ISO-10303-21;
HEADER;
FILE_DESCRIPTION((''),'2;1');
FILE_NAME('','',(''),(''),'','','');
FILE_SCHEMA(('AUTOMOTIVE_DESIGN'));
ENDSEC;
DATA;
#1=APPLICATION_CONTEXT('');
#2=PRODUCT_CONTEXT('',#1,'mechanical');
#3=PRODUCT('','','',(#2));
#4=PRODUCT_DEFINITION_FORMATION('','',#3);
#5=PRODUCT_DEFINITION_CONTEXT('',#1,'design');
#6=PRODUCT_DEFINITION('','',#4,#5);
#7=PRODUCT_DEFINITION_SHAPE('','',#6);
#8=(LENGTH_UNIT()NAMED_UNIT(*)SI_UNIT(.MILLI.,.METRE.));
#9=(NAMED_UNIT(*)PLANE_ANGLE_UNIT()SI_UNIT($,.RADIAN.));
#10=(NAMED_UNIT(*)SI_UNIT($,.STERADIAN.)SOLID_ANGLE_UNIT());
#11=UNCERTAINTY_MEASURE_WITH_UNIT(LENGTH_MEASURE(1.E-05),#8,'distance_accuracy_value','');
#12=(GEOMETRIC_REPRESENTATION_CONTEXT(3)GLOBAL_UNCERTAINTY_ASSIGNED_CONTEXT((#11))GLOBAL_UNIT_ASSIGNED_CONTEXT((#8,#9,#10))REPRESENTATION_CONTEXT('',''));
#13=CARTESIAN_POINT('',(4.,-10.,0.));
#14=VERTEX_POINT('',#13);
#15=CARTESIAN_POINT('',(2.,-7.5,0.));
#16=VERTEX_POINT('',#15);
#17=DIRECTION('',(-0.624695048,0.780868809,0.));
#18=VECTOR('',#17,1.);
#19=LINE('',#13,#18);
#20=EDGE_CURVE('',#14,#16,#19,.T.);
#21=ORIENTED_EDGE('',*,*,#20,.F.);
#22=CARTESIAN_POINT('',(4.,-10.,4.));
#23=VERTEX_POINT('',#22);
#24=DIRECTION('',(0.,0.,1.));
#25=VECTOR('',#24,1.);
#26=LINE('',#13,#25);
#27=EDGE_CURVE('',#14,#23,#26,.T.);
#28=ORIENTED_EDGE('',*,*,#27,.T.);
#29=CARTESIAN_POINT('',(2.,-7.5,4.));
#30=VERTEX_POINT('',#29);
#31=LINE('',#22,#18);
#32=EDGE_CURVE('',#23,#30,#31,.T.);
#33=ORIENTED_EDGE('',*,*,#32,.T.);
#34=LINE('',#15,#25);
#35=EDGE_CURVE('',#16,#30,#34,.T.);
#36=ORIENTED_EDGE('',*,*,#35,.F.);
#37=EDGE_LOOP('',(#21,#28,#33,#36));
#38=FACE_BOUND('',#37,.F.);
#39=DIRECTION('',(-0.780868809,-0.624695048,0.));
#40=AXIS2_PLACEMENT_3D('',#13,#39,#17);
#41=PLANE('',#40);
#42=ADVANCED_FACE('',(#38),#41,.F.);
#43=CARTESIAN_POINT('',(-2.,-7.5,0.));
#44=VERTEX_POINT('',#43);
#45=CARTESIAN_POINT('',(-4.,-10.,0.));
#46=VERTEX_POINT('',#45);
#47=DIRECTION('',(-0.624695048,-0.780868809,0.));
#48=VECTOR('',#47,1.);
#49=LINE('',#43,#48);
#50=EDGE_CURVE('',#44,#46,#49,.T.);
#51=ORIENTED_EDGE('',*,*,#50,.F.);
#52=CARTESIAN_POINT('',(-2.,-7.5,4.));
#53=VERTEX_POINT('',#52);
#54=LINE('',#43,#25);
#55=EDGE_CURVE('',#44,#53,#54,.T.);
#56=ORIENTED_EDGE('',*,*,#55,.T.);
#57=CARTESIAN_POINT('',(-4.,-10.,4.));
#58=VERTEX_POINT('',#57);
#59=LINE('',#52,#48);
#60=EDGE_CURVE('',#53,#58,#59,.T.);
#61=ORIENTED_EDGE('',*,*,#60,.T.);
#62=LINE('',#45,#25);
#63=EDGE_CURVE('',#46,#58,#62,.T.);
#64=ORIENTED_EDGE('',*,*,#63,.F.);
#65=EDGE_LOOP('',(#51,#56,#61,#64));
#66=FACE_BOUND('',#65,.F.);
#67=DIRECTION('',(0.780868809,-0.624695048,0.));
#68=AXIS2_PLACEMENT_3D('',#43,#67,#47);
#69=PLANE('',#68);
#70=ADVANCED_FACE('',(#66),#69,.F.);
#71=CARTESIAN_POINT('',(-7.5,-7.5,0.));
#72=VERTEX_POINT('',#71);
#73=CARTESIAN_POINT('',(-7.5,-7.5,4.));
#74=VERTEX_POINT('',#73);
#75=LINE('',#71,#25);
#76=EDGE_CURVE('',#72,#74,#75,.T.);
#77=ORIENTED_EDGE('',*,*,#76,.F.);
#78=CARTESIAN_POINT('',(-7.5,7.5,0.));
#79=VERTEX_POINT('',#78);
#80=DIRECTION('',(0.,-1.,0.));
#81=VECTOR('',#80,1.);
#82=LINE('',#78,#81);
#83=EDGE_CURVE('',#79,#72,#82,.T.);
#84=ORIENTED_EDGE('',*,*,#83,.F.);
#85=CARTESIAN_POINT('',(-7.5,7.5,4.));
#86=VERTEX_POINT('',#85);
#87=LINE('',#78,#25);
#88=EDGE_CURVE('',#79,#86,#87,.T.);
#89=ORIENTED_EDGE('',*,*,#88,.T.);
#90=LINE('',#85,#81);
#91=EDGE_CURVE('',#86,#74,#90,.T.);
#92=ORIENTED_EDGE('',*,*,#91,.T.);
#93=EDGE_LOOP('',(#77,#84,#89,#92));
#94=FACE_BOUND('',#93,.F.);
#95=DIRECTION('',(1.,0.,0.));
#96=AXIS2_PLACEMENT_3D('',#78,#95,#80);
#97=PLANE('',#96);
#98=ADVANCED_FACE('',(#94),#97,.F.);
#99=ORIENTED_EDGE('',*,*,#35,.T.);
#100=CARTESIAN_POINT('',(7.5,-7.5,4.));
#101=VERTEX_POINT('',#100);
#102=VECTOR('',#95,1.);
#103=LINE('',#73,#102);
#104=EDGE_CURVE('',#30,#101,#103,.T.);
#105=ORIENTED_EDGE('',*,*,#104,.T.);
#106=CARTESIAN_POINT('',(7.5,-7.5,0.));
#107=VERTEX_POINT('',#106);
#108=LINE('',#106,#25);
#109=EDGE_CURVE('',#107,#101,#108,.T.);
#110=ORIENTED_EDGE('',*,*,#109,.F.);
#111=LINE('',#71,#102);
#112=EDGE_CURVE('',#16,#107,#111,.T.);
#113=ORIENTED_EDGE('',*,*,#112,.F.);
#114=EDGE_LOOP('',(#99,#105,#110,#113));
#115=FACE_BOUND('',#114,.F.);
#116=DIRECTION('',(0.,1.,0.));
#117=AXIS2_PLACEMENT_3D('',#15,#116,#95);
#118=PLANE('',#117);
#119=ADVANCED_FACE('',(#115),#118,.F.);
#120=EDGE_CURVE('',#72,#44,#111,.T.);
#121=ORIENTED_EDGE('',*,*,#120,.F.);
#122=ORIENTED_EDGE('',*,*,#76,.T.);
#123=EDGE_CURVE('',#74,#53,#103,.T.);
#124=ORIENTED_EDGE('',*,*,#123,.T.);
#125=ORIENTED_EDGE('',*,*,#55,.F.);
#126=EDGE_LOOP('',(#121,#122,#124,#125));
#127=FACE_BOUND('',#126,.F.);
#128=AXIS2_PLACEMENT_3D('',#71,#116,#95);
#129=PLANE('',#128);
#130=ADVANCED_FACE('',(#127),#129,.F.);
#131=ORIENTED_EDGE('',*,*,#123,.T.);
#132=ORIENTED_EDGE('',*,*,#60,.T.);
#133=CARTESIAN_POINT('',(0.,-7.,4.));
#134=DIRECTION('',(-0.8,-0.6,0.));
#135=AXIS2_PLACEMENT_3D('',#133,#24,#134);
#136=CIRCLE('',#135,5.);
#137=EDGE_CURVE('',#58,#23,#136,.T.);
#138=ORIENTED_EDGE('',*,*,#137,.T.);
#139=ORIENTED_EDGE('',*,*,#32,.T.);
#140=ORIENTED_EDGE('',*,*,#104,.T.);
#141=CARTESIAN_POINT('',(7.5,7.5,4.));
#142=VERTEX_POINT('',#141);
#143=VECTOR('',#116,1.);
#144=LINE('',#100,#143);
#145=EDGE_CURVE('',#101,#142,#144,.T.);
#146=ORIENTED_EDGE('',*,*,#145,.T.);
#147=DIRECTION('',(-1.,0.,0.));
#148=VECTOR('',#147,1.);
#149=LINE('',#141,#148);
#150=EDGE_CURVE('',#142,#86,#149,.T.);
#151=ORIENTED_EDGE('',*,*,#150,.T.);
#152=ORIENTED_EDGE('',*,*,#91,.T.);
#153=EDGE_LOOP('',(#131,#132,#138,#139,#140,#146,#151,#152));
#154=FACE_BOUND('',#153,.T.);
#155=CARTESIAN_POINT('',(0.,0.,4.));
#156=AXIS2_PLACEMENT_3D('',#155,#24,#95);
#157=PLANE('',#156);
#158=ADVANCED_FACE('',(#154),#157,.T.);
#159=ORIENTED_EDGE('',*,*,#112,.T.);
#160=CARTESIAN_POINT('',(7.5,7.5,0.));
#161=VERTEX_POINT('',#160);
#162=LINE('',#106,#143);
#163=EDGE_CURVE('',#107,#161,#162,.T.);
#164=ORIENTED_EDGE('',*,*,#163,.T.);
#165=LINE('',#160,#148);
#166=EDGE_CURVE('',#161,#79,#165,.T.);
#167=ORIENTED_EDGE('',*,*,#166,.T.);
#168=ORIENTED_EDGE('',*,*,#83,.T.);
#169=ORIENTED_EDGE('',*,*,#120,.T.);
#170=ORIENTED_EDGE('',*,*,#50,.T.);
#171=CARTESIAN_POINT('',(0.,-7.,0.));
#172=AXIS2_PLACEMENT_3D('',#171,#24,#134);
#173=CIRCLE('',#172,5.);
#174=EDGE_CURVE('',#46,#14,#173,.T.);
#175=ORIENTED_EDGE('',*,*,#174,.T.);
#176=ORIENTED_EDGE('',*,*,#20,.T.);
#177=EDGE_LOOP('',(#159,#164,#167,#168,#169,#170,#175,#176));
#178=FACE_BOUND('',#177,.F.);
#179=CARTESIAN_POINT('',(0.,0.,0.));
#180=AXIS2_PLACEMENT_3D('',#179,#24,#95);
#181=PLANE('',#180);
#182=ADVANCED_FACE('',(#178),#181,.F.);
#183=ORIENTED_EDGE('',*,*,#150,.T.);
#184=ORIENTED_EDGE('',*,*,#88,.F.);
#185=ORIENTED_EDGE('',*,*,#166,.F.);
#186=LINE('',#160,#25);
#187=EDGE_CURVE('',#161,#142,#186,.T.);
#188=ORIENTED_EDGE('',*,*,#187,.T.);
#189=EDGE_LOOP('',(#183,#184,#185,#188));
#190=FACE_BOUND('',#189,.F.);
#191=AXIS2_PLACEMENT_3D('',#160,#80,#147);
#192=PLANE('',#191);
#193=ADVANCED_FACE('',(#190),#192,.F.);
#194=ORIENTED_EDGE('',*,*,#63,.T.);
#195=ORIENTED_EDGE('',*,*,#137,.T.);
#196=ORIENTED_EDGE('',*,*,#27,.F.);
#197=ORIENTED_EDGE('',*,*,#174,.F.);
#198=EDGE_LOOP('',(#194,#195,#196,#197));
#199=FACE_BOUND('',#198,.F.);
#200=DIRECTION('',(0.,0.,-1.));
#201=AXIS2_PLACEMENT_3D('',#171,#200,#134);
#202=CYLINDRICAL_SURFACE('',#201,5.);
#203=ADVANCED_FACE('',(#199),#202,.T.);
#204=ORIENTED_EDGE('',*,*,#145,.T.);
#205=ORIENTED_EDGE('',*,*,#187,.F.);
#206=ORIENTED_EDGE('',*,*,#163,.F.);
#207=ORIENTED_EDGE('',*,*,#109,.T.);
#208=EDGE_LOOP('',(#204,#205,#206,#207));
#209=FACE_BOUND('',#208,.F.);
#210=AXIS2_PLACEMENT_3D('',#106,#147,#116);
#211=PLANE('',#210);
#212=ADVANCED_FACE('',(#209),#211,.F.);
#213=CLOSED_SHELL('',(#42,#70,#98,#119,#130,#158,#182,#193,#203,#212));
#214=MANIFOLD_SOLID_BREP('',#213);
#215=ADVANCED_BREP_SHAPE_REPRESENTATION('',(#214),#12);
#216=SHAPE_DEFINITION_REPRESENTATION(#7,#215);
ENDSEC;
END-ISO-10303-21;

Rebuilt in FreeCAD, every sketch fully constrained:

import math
import FreeCAD as App
import Part
import Sketcher
from FreeCAD import Vector

doc = App.newDocument("Part")
params = doc.addObject("Spreadsheet::Sheet", "Params")
for row, (alias, value) in enumerate([
    ("sketch1_radius", "5 mm"),
    ("sketch1_width", "15 mm"),
    ("sketch1_width2", "5.5 mm"),
    ("pad1_length", "4 mm"),
], start=1):
    params.set(f"A{row}", alias)
    params.set(f"B{row}", "=" + value)
    params.setAlias(f"B{row}", alias)

body = doc.addObject("PartDesign::Body", "Body")

sketch1 = body.newObject("Sketcher::SketchObject", "Sketch")
sketch1.AttachmentSupport = (doc.getObject("XY_Plane"), [""])
sketch1.MapMode = "FlatFace"
sketch1.addGeometry(Part.LineSegment(Vector(7.5, -7.5, 0), Vector(7.5, 7.5, 0)), False)
sketch1.addGeometry(Part.LineSegment(Vector(7.5, 7.5, 0), Vector(-7.5, 7.5, 0)), False)
sketch1.addGeometry(Part.LineSegment(Vector(-7.5, 7.5, 0), Vector(-7.5, -7.5, 0)), False)
sketch1.addGeometry(Part.LineSegment(Vector(-7.5, -7.5, 0), Vector(-2, -7.5, 0)), False)
sketch1.addGeometry(Part.LineSegment(Vector(-2, -7.5, 0), Vector(-4, -10, 0)), False)
sketch1.addGeometry(Part.ArcOfCircle(Part.Circle(Vector(0, -7, 0), Vector(0, 0, 1), 5), math.radians(-143), math.radians(-37)), False)
sketch1.addGeometry(Part.LineSegment(Vector(4, -10, 0), Vector(2, -7.5, 0)), False)
sketch1.addGeometry(Part.LineSegment(Vector(2, -7.5, 0), Vector(7.5, -7.5, 0)), False)
sketch1.addConstraint(Sketcher.Constraint("Coincident", 0, 2, 1, 1))
sketch1.addConstraint(Sketcher.Constraint("Coincident", 1, 2, 2, 1))
sketch1.addConstraint(Sketcher.Constraint("Coincident", 2, 2, 3, 1))
sketch1.addConstraint(Sketcher.Constraint("Coincident", 3, 2, 4, 1))
sketch1.addConstraint(Sketcher.Constraint("Coincident", 4, 2, 5, 1))
sketch1.addConstraint(Sketcher.Constraint("Coincident", 5, 2, 6, 1))
sketch1.addConstraint(Sketcher.Constraint("Coincident", 6, 2, 7, 1))
sketch1.addConstraint(Sketcher.Constraint("Coincident", 7, 2, 0, 1))
sketch1.addConstraint(Sketcher.Constraint("Vertical", 0))
sketch1.addConstraint(Sketcher.Constraint("Horizontal", 1))
sketch1.addConstraint(Sketcher.Constraint("Vertical", 2))
sketch1.addConstraint(Sketcher.Constraint("Horizontal", 3))
sketch1.addConstraint(Sketcher.Constraint("Horizontal", 7))
sketch1.addConstraint(Sketcher.Constraint("Symmetric", 0, 2, 2, 2, -1, 1))
sketch1.addConstraint(Sketcher.Constraint("Symmetric", 4, 2, 5, 2, -2))
sketch1.addConstraint(Sketcher.Constraint("Symmetric", 3, 2, 6, 2, -2))
sketch1.addConstraint(Sketcher.Constraint("Equal", 1, 0))
sketch1.addConstraint(Sketcher.Constraint("Radius", 5, 5.0))
sketch1.addConstraint(Sketcher.Constraint("DistanceX", 1, 2, 1, 1, 15.0))
sketch1.addConstraint(Sketcher.Constraint("DistanceX", 3, 1, 3, 2, 5.5))
sketch1.addConstraint(Sketcher.Constraint("DistanceY", 5, 3, -1, 1, 7.0))
sketch1.addConstraint(Sketcher.Constraint("DistanceX", 4, 2, -1, 1, 4.0))
sketch1.setExpression("Constraints[17]", "Params.sketch1_radius")
sketch1.setExpression("Constraints[18]", "Params.sketch1_width")
sketch1.setExpression("Constraints[19]", "Params.sketch1_width2")
pad1 = body.newObject("PartDesign::Pad", "Pad")
pad1.Profile = sketch1
pad1.setExpression("Length", "Params.pad1_length")

doc.recompute()
